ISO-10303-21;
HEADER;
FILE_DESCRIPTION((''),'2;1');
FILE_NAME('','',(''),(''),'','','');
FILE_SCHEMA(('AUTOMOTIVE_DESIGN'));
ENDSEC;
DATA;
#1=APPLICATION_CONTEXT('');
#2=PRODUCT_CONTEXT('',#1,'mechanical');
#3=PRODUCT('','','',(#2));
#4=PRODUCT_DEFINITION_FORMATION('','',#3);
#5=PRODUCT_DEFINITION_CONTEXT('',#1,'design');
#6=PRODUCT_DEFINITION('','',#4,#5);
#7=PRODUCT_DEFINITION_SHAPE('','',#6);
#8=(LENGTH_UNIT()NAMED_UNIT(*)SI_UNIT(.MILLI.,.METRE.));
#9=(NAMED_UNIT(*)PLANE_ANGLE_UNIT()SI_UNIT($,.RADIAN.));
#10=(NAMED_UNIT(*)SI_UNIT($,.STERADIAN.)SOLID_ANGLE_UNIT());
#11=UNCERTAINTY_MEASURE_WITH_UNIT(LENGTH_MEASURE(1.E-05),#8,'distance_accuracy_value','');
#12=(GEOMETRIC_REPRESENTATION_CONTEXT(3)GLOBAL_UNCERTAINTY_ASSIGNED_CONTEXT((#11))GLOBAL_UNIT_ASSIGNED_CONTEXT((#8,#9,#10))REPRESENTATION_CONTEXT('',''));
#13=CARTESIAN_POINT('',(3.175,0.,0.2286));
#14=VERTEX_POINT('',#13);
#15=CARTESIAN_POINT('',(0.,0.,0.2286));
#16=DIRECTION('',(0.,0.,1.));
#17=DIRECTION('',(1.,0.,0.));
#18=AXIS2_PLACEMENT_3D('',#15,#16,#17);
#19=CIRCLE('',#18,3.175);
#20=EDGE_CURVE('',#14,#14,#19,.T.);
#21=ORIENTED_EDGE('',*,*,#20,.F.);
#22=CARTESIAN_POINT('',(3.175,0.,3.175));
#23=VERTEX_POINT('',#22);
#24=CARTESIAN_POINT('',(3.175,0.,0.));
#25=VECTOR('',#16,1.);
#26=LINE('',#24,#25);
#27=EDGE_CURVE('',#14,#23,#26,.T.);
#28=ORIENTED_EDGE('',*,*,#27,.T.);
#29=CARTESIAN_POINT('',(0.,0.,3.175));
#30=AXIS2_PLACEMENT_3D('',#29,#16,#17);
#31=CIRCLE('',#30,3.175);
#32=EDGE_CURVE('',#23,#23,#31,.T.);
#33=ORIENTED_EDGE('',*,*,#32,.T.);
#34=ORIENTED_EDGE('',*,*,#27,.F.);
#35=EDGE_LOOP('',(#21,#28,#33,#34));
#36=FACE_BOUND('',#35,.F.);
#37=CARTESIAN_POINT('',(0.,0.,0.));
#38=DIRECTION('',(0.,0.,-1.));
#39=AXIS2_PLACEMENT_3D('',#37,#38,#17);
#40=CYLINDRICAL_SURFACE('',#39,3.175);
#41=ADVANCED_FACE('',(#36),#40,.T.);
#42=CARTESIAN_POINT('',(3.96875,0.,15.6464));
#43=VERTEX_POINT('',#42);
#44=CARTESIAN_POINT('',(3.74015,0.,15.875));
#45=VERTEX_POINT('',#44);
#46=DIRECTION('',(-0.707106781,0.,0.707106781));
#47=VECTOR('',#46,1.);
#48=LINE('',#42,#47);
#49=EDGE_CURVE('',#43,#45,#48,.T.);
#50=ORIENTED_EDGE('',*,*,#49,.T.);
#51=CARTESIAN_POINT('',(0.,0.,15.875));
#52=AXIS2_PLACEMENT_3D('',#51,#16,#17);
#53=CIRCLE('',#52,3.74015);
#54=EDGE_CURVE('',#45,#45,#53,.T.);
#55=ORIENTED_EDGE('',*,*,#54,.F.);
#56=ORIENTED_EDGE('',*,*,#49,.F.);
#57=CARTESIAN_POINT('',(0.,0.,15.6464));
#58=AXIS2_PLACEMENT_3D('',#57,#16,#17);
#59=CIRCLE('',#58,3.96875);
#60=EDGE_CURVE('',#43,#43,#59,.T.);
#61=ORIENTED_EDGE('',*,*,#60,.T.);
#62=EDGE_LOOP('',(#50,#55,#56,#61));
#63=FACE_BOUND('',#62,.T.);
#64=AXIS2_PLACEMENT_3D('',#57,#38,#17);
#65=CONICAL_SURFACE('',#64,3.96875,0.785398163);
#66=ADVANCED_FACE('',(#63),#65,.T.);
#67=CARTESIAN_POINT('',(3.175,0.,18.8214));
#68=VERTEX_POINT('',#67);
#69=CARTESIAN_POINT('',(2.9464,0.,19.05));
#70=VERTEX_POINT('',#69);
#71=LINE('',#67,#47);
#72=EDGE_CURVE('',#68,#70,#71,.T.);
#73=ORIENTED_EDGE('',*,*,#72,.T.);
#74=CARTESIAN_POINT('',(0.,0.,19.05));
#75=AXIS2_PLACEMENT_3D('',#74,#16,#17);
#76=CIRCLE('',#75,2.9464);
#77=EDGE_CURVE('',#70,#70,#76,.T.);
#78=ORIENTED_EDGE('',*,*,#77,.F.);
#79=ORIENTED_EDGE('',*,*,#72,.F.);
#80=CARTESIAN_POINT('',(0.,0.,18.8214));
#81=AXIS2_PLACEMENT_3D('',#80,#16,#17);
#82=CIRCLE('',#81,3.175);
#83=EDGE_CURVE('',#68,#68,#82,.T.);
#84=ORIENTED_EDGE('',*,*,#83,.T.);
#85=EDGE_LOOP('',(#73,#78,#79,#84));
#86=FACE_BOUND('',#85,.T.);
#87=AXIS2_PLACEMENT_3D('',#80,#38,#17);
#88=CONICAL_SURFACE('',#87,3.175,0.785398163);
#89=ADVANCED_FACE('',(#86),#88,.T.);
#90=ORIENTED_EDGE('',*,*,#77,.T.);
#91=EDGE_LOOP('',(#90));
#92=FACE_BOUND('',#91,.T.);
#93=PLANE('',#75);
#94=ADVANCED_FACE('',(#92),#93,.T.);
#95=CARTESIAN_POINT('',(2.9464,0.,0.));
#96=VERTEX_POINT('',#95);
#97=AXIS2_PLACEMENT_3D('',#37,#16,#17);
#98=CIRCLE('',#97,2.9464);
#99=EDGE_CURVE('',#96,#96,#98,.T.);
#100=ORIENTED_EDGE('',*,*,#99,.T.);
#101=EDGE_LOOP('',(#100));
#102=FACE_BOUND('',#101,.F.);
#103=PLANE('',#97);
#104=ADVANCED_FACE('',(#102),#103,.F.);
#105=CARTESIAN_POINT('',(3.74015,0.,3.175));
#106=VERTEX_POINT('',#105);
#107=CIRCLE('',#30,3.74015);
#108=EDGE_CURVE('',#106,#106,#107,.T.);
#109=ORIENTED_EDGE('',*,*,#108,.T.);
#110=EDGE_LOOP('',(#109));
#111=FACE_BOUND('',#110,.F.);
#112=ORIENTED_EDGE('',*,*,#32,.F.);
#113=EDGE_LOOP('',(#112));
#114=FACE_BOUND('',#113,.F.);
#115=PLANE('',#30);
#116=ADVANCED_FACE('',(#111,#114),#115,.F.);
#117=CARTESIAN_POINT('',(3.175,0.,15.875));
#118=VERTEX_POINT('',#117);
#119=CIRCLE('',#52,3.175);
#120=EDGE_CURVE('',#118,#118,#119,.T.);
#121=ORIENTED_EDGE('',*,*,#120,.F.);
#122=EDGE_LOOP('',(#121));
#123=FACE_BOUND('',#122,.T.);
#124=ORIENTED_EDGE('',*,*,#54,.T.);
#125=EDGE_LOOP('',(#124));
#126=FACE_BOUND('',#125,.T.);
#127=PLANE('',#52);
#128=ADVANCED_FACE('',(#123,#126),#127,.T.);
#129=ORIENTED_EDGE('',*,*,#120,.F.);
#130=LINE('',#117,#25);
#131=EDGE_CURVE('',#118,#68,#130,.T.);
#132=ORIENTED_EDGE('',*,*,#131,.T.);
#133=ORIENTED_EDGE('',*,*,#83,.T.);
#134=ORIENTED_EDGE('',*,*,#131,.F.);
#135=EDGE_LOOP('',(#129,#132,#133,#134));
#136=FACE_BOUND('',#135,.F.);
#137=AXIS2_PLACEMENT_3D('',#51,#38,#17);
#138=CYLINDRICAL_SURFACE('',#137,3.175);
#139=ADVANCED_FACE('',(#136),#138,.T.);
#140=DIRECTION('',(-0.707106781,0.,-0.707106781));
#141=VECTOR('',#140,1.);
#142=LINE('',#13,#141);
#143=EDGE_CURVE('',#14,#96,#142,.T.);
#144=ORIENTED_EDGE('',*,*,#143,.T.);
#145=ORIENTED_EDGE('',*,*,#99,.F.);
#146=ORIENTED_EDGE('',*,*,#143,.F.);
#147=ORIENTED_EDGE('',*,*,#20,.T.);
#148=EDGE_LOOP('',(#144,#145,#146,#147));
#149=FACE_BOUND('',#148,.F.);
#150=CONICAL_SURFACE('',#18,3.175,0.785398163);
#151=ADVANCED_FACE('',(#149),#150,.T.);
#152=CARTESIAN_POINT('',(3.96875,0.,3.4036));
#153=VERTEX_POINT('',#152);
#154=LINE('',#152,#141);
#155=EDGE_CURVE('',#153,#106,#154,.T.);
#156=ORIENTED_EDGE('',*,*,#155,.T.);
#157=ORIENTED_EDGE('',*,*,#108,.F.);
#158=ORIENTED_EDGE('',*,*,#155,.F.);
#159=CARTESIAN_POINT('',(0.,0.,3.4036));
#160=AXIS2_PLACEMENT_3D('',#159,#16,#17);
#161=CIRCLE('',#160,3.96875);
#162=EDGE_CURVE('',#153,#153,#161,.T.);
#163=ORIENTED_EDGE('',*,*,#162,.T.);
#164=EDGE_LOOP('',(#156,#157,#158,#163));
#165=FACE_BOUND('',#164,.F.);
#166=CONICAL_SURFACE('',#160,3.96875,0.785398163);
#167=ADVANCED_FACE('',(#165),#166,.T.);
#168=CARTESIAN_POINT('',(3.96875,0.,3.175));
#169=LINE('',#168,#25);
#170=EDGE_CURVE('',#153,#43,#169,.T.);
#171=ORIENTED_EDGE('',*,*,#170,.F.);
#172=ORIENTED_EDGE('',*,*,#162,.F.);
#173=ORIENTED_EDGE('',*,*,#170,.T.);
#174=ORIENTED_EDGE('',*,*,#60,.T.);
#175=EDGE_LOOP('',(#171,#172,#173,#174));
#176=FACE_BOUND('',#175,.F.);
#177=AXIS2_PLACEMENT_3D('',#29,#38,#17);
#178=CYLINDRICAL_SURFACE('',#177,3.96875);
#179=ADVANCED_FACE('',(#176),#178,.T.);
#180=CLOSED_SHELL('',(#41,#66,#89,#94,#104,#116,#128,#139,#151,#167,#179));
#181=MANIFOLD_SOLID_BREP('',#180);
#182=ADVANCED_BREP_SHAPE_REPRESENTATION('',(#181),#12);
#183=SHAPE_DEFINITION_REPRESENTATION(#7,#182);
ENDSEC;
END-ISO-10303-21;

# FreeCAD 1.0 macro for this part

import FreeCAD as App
import Part
import Sketcher
Q = App.Units.Quantity


def edges_at(feature, points):
    """Names of the edges that pass closest to the given points."""
    edges = feature.Shape.Edges
    near = lambda p: min(range(len(edges)), key=lambda i: edges[i].distToShape(Part.Vertex(*p))[0])
    return sorted({f"Edge{near(p) + 1}" for p in points})

doc = App.newDocument("Part")
body = doc.addObject("PartDesign::Body", "Body")

# Sketch on XY plane
sketch1 = body.newObject("Sketcher::SketchObject", "Sketch")
sketch1.AttachmentSupport = (doc.getObject("XY_Plane"), [""])
sketch1.MapMode = "FlatFace"
sketch1.addGeometry(Part.Circle(App.Vector(0, 0, 0), App.Vector(0, 0, 1), 3.2), False)
sketch1.addConstraint([
    Sketcher.Constraint("Coincident", 0, 3, -1, 1),
    Sketcher.Constraint("Diameter", 0, Q("0.25 in")),
])
pad1 = body.newObject("PartDesign::Pad", "Pad")
pad1.Profile = sketch1
pad1.Length = Q("0.125 in")

# Sketch on XY plane
sketch2 = body.newObject("Sketcher::SketchObject", "Sketch001")
sketch2.AttachmentSupport = (doc.getObject("XY_Plane"), [""])
sketch2.MapMode = "FlatFace"
sketch2.AttachmentOffset = App.Placement(App.Vector(0, 0, 0.125 * 25.4), App.Rotation())
sketch2.addGeometry(Part.Circle(App.Vector(0, 0, 0), App.Vector(0, 0, 1), 4), False)
sketch2.addConstraint([
    Sketcher.Constraint("Coincident", 0, 3, -1, 1),
    Sketcher.Constraint("Diameter", 0, Q("0.3125 in")),
])
pad2 = body.newObject("PartDesign::Pad", "Pad001")
pad2.Profile = sketch2
pad2.Length = Q("0.5 in")

# Sketch on XY plane
sketch3 = body.newObject("Sketcher::SketchObject", "Sketch002")
sketch3.AttachmentSupport = (doc.getObject("XY_Plane"), [""])
sketch3.MapMode = "FlatFace"
sketch3.AttachmentOffset = App.Placement(App.Vector(0, 0, 0.625 * 25.4), App.Rotation())
sketch3.addGeometry(Part.Circle(App.Vector(0, 0, 0), App.Vector(0, 0, 1), 3.2), False)
sketch3.addConstraint([
    Sketcher.Constraint("Coincident", 0, 3, -1, 1),
    Sketcher.Constraint("Diameter", 0, Q("0.25 in")),
])
pad3 = body.newObject("PartDesign::Pad", "Pad002")
pad3.Profile = sketch3
pad3.Length = Q("0.125 in")
doc.recompute()

chamfer = body.newObject("PartDesign::Chamfer", "Chamfer")
chamfer.Base = (pad3, edges_at(pad3, [
    (-3.175, 0, 19.05),
    (-3.969, 0, 15.875),
    (-3.969, 0, 3.175),
    (-3.175, 0, 0),
]))
chamfer.Size = Q("0.009 in")

doc.recompute()
